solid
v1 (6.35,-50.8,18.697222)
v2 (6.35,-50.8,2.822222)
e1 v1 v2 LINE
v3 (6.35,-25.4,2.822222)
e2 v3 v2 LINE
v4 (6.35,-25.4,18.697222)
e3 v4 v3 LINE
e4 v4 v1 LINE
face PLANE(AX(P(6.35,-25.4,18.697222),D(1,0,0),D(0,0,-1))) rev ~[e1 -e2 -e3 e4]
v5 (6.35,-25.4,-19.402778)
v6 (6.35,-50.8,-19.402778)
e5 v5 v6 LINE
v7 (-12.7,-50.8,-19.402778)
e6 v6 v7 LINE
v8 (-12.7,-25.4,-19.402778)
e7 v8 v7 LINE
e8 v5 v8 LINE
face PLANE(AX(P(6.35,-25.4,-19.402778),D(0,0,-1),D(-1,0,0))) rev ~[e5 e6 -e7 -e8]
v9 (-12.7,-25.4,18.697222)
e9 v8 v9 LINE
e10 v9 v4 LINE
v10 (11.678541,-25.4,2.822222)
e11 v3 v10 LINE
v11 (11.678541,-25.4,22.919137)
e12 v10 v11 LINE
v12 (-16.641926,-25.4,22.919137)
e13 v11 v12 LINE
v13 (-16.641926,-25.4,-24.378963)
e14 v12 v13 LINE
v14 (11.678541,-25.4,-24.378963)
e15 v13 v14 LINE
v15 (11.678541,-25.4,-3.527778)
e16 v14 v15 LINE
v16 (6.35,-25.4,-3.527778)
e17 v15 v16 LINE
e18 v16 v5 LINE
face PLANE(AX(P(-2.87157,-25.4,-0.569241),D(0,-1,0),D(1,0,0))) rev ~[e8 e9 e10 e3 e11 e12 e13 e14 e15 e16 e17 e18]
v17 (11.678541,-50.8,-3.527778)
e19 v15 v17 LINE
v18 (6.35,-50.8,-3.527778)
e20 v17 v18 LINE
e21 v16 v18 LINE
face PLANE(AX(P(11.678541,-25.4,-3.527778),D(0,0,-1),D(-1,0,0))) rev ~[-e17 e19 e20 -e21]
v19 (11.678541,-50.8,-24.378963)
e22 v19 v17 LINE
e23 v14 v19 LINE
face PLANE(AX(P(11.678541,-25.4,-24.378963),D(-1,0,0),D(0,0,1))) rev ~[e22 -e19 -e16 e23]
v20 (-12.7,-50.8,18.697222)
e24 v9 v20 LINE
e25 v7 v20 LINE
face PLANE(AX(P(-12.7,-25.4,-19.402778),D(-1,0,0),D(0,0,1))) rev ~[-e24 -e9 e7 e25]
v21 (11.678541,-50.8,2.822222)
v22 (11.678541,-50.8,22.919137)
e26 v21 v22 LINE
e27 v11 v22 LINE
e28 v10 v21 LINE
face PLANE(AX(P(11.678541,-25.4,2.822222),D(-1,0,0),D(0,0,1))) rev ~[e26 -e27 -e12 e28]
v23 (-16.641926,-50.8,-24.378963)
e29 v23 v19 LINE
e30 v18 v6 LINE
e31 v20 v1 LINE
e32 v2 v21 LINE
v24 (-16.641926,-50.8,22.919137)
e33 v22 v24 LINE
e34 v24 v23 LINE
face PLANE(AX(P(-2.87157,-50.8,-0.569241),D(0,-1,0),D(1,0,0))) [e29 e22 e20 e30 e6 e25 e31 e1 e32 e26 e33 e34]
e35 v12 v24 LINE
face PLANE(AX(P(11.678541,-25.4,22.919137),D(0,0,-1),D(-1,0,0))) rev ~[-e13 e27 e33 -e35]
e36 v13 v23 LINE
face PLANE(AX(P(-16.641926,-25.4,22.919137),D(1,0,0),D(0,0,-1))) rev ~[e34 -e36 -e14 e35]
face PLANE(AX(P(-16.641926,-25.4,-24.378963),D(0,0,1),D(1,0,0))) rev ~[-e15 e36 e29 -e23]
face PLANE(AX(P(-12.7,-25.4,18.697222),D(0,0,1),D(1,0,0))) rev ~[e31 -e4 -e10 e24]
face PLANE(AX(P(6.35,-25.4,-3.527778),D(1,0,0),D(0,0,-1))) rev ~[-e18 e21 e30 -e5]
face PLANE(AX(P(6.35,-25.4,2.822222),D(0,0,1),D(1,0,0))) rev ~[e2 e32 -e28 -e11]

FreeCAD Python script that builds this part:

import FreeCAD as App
import Part
import Sketcher
Q = App.Units.Quantity


def add_polygon(sketch, points):
    """Adds a closed chain of lines whose ends are joined by coincident constraints."""
    first, n = sketch.GeometryCount, len(points)
    for a, b in zip(points, points[1:] + points[:1]):
        sketch.addGeometry(Part.LineSegment(App.Vector(*a, 0), App.Vector(*b, 0)), False)
    for i in range(n):
        sketch.addConstraint(Sketcher.Constraint("Coincident", first + i, 2, first + (i + 1) % n, 1))

doc = App.newDocument("Part")
body = doc.addObject("PartDesign::Body", "Body")

# Sketch on XZ plane
sketch1 = body.newObject("Sketcher::SketchObject", "Sketch")
sketch1.AttachmentSupport = (doc.getObject("XZ_Plane"), [""])
sketch1.MapMode = "FlatFace"
sketch1.AttachmentOffset = App.Placement(App.Vector(0, 0, 1 * 25.4), App.Rotation())
add_polygon(sketch1, [(-12.7, -19.402778), (-12.7, 18.697222), (6.35, 18.697222), (6.35, 2.822222), (11.678541, 2.822222), (11.678541, 22.919137), (-16.641926, 22.919137), (-16.641926, -24.378963), (11.678541, -24.378963), (11.678541, -3.527778), (6.35, -3.527778), (6.35, -19.402778)])  # lines 0-11
sketch1.addConstraint(Sketcher.Constraint("Vertical", 0))
sketch1.addConstraint(Sketcher.Constraint("Horizontal", 1))
sketch1.addConstraint(Sketcher.Constraint("Vertical", 2))
sketch1.addConstraint(Sketcher.Constraint("Horizontal", 3))
sketch1.addConstraint(Sketcher.Constraint("Vertical", 4))
sketch1.addConstraint(Sketcher.Constraint("Horizontal", 5))
sketch1.addConstraint(Sketcher.Constraint("Vertical", 6))
sketch1.addConstraint(Sketcher.Constraint("Horizontal", 7))
sketch1.addConstraint(Sketcher.Constraint("Vertical", 8))
sketch1.addConstraint(Sketcher.Constraint("Horizontal", 9))
sketch1.addConstraint(Sketcher.Constraint("Vertical", 10))
sketch1.addConstraint(Sketcher.Constraint("Horizontal", 11))
sketch1.addConstraint(Sketcher.Constraint("Vertical", 4, 2, 7, 2))
sketch1.addConstraint(Sketcher.Constraint("Vertical", 2, 2, 9, 2))
sketch1.addConstraint(Sketcher.Constraint("Equal", 2, 10))
sketch1.addConstraint(Sketcher.Constraint("DistanceY", 0, 1, 0, 2, Q("1.5 in")))
sketch1.addConstraint(Sketcher.Constraint("DistanceX", 1, 1, 1, 2, Q("0.75 in")))
sketch1.addConstraint(Sketcher.Constraint("DistanceX", 0, 2, -1, 1, Q("0.5 in")))
sketch1.addConstraint(Sketcher.Constraint("DistanceY", 2, 2, 2, 1, Q("0.625 in")))
sketch1.addConstraint(Sketcher.Constraint("DistanceY", 6, 2, 6, 1, 47.2981))
sketch1.addConstraint(Sketcher.Constraint("DistanceX", 3, 1, 3, 2, 5.328541))
sketch1.addConstraint(Sketcher.Constraint("DistanceX", 5, 2, 5, 1, 28.320467))
sketch1.addConstraint(Sketcher.Constraint("DistanceY", 4, 1, 4, 2, 20.096915))
sketch1.addConstraint(Sketcher.Constraint("DistanceY", -1, 1, 0, 2, 18.697222))
pad1 = body.newObject("PartDesign::Pad", "Pad")
pad1.Profile = sketch1
pad1.Length = Q("1 in")

doc.recompute()
